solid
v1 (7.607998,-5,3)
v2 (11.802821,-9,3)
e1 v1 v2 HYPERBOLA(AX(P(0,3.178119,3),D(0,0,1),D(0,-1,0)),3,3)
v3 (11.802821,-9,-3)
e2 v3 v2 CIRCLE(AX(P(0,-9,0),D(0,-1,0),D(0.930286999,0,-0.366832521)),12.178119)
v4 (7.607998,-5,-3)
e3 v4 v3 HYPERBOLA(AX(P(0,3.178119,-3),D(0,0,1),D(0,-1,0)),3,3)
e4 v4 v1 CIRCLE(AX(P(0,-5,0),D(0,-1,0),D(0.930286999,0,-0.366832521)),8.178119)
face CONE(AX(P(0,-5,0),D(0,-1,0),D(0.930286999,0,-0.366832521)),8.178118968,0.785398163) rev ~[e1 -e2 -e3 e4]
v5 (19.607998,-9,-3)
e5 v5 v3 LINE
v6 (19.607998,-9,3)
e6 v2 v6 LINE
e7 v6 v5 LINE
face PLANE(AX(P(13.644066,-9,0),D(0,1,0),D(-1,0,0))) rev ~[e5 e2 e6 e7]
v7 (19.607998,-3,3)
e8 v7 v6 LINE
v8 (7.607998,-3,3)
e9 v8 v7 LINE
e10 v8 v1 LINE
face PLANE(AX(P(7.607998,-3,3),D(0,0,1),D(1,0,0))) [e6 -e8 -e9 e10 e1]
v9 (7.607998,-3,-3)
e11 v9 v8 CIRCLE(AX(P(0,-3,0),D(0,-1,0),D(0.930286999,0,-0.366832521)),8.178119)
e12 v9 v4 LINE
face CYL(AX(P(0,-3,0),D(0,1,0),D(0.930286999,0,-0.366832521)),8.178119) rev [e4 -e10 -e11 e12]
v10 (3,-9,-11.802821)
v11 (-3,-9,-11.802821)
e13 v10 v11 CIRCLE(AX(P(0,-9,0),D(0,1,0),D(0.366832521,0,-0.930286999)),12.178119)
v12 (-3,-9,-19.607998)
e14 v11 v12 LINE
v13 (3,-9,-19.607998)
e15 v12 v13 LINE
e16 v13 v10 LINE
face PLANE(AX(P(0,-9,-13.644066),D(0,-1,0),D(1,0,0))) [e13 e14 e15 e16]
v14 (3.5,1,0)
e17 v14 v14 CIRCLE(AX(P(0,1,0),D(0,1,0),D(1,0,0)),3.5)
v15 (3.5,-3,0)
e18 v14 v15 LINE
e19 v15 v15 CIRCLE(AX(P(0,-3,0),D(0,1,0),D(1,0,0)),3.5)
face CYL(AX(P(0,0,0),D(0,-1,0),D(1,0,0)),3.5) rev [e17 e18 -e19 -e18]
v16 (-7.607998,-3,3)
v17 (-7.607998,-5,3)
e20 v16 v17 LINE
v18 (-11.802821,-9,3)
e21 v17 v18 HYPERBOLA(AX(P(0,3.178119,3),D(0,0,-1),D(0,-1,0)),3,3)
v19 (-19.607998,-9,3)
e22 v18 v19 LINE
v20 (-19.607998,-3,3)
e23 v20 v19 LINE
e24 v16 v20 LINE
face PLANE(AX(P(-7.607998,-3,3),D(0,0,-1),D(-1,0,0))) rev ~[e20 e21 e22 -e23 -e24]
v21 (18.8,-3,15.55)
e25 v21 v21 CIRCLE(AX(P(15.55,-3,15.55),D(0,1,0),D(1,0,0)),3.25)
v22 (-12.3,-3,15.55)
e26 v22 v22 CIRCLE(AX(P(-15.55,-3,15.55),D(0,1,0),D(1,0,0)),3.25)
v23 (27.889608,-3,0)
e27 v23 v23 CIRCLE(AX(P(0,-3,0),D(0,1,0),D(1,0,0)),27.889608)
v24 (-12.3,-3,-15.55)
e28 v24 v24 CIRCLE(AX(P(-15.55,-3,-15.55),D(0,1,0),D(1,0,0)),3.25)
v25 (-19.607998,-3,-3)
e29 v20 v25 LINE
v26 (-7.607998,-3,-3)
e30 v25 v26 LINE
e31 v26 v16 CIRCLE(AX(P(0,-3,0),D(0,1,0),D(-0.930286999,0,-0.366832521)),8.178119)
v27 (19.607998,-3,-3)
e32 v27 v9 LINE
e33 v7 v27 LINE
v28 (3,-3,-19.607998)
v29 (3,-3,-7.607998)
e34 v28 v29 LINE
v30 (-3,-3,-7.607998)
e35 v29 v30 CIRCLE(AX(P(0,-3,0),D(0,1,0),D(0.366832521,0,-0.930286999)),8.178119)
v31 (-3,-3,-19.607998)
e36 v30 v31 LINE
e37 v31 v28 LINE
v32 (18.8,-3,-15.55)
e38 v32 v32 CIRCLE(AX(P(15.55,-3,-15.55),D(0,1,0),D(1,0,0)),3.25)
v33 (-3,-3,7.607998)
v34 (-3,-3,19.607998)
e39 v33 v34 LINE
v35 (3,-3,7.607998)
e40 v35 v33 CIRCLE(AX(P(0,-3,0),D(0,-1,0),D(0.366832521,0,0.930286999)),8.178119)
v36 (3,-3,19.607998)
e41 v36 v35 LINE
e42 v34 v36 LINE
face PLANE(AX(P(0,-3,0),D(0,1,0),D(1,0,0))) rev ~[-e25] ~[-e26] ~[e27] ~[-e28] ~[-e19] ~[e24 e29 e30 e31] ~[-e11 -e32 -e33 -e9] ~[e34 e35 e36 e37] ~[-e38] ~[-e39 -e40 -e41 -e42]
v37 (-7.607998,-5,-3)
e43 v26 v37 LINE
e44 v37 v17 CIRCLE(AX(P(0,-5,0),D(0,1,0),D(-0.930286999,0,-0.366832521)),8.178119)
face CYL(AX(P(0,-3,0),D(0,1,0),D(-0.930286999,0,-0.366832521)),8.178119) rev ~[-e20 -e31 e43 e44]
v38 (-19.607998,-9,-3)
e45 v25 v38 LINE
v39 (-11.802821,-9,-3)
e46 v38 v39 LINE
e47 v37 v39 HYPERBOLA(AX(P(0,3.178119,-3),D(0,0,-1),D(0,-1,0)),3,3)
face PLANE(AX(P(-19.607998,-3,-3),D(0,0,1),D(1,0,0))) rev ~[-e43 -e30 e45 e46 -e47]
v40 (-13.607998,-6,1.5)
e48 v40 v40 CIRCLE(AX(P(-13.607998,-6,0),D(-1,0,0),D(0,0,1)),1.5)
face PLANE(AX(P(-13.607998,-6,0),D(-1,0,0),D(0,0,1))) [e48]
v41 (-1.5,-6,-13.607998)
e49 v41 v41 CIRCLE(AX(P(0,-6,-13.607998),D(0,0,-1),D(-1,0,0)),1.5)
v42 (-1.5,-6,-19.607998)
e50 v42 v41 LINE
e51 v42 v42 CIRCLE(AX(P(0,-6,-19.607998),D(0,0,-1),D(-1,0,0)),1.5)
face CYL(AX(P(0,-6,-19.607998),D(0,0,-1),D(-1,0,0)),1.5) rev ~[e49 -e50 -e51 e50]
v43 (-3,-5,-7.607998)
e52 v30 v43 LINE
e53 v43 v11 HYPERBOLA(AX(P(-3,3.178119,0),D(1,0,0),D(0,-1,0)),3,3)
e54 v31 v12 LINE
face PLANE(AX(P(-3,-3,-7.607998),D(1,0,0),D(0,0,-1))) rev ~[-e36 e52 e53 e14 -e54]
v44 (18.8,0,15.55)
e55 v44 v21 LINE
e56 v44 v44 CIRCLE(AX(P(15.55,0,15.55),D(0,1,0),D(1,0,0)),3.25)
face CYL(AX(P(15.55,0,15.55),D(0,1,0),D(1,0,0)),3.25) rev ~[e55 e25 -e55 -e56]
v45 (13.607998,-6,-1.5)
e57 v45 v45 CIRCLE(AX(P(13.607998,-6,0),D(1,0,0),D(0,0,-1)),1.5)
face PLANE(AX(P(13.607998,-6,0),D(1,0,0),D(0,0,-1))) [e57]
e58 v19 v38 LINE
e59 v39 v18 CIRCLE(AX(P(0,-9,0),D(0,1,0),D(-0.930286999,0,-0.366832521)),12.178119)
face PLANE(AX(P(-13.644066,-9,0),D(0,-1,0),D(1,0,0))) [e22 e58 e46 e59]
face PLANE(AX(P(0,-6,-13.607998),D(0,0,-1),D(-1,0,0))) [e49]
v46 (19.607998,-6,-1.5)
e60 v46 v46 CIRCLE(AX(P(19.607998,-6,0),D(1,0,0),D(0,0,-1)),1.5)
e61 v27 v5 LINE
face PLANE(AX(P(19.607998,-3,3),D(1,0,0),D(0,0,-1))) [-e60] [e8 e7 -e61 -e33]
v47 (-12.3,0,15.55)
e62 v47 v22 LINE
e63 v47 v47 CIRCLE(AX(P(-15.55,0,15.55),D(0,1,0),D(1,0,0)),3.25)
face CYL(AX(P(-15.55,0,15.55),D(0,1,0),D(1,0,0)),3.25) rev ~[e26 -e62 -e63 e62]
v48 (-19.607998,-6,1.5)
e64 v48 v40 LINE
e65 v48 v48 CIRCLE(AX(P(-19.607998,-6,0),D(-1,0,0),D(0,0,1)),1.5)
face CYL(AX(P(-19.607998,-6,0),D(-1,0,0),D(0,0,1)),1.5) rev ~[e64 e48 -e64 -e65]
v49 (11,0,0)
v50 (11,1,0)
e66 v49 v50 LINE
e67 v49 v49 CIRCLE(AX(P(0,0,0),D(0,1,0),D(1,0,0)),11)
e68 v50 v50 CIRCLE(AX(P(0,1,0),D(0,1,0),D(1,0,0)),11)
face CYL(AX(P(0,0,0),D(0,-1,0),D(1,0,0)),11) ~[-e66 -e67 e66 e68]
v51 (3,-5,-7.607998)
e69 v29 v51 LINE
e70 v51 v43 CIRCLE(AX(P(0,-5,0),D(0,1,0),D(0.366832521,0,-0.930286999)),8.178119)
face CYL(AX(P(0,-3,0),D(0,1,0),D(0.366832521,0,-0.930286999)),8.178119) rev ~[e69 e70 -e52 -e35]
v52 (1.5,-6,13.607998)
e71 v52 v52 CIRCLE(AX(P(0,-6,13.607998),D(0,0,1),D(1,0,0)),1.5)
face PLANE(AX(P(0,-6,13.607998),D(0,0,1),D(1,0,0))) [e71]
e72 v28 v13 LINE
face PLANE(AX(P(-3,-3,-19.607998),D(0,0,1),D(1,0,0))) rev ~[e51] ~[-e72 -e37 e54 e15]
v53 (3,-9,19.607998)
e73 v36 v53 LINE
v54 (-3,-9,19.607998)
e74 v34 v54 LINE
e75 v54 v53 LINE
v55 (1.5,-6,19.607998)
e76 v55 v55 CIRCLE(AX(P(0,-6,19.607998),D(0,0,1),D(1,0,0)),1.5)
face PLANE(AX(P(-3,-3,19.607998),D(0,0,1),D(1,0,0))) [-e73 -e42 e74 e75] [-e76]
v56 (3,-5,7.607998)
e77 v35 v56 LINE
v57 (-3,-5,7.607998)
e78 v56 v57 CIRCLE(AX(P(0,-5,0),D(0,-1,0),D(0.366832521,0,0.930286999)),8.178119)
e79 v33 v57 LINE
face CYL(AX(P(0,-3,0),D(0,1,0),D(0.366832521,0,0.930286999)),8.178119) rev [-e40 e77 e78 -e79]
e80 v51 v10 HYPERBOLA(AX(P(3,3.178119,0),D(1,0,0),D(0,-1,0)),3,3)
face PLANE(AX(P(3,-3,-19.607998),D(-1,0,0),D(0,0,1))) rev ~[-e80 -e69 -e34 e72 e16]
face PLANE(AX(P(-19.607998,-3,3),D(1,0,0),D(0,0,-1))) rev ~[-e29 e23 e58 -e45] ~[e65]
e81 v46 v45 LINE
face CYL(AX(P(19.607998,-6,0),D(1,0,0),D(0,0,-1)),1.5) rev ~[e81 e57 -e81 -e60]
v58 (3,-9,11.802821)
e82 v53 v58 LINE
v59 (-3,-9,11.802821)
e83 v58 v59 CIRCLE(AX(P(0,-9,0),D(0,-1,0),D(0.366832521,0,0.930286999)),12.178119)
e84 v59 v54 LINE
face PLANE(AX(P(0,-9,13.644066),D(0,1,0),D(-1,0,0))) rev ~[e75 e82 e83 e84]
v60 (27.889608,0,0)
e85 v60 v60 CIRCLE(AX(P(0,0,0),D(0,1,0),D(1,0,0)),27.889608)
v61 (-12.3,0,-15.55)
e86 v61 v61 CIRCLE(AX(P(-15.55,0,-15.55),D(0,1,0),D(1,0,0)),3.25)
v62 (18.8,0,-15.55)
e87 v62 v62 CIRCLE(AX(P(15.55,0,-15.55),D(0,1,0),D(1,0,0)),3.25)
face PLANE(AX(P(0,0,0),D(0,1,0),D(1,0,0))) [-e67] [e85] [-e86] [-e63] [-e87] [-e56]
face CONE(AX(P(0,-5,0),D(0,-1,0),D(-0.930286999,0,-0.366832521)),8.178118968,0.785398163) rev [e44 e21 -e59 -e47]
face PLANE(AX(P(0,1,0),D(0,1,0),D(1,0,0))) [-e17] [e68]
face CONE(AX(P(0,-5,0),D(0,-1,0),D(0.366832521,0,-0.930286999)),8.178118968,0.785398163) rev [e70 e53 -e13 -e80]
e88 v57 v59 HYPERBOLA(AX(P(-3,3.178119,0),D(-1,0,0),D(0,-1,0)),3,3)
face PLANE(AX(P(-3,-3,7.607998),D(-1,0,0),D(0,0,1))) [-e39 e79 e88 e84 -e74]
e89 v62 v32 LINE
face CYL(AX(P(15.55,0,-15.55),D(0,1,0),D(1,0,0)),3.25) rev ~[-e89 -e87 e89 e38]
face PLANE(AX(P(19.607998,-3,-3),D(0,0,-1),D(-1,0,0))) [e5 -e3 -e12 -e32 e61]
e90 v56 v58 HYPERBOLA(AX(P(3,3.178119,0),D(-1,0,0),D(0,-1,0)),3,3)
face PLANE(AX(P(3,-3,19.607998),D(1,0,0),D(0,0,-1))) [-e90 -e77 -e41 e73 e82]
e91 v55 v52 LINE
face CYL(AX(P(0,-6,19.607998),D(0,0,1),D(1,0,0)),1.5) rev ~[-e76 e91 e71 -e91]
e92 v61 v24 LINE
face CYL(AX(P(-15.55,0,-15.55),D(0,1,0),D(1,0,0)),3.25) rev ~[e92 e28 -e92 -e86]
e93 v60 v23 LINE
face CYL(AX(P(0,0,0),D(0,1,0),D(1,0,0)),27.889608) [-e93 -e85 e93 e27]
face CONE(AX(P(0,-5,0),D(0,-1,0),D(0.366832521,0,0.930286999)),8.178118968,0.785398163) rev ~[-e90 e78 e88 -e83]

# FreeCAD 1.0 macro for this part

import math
import FreeCAD as App
import Part
import Sketcher
from FreeCAD import Vector


def edges_at(feature, points):
    """Names of the edges that pass closest to the given points."""
    edges = feature.Shape.Edges
    near = lambda p: min(range(len(edges)), key=lambda i: edges[i].distToShape(Part.Vertex(*p))[0])
    return sorted({f"Edge{near(p) + 1}" for p in points})

doc = App.newDocument("Part")
body = doc.addObject("PartDesign::Body", "Body")

sketch1 = body.newObject("Sketcher::SketchObject", "Sketch")
sketch1.AttachmentSupport = (doc.getObject("XZ_Plane"), [""])
sketch1.MapMode = "FlatFace"
sketch1.addGeometry([
    Part.Circle(Vector(0, 0, 0), Vector(0, 0, 1), 27.9),
    Part.Circle(Vector(-15.6, 15.6, 0), Vector(0, 0, 1), 3.2),
    Part.Circle(Vector(15.6, 15.6, 0), Vector(0, 0, 1), 3.2),
    Part.Circle(Vector(0, 0, 0), Vector(0, 0, 1), 3.5),
    Part.Circle(Vector(-15.6, -15.6, 0), Vector(0, 0, 1), 3.2),
    Part.Circle(Vector(15.6, -15.6, 0), Vector(0, 0, 1), 3.2),
], False)
sketch1.addConstraint([
    Sketcher.Constraint("Coincident", 0, 3, -1, 1),
    Sketcher.Constraint("Coincident", 3, 3, -1, 1),
    Sketcher.Constraint("Equal", 1, 2),
    Sketcher.Constraint("Equal", 2, 4),
    Sketcher.Constraint("Equal", 4, 5),
    Sketcher.Constraint("Symmetric", 2, 3, 4, 3, -1, 1),
    Sketcher.Constraint("Symmetric", 1, 3, 5, 3, -1, 1),
    Sketcher.Constraint("Symmetric", 1, 3, 2, 3, -2),
    Sketcher.Constraint("Diameter", 3, 7.0),
    Sketcher.Constraint("Diameter", 1, 6.5),
    Sketcher.Constraint("DistanceX", 1, 3, 2, 3, 31.1),
    Sketcher.Constraint("DistanceY", 4, 3, 1, 3, 31.1),
    Sketcher.Constraint("Diameter", 0, 55.779216),
])
pad1 = body.newObject("PartDesign::Pad", "Pad")
pad1.Profile = sketch1
pad1.Length = 3

sketch2 = body.newObject("Sketcher::SketchObject", "Sketch001")
sketch2.AttachmentSupport = (doc.getObject("XZ_Plane"), [""])
sketch2.MapMode = "FlatFace"
sketch2.addGeometry([
    Part.Circle(Vector(0, 0, 0), Vector(0, 0, 1), 11),
    Part.Circle(Vector(0, 0, 0), Vector(0, 0, 1), 3.5),
], False)
sketch2.addConstraint([
    Sketcher.Constraint("Coincident", 0, 3, -1, 1),
    Sketcher.Constraint("Coincident", 1, 3, -1, 1),
    Sketcher.Constraint("Diameter", 0, 22.0),
    Sketcher.Constraint("Diameter", 1, 7.0),
])
pad2 = body.newObject("PartDesign::Pad", "Pad001")
pad2.Profile = sketch2
pad2.Length = 1
pad2.Reversed = True

sketch3 = body.newObject("Sketcher::SketchObject", "Sketch002")
sketch3.AttachmentSupport = (doc.getObject("XZ_Plane"), [""])
sketch3.MapMode = "FlatFace"
sketch3.AttachmentOffset = App.Placement(Vector(0, 0, 3), App.Rotation())
sketch3.addGeometry([
    Part.LineSegment(Vector(-20, -3, 0), Vector(-8, -3, 0)),
    Part.ArcOfCircle(Part.Circle(Vector(0, 0, 0), Vector(0, 0, 1), 8), math.radians(158), math.radians(202)),
    Part.LineSegment(Vector(-8, 3, 0), Vector(-20, 3, 0)),
    Part.LineSegment(Vector(-20, 3, 0), Vector(-20, -3, 0)),
    Part.LineSegment(Vector(3, 20, 0), Vector(-3, 20, 0)),
    Part.LineSegment(Vector(-3, 20, 0), Vector(-3, 8, 0)),
    Part.ArcOfCircle(Part.Circle(Vector(0, 0, 0), Vector(0, 0, 1), 8), math.radians(68), math.radians(112)),
    Part.LineSegment(Vector(3, 8, 0), Vector(3, 20, 0)),
    Part.LineSegment(Vector(8, -3, 0), Vector(20, -3, 0)),
    Part.LineSegment(Vector(20, -3, 0), Vector(20, 3, 0)),
    Part.LineSegment(Vector(20, 3, 0), Vector(8, 3, 0)),
    Part.ArcOfCircle(Part.Circle(Vector(0, 0, 0), Vector(0, 0, 1), 8), math.radians(-22), math.radians(22)),
    Part.LineSegment(Vector(-3, -20, 0), Vector(3, -20, 0)),
    Part.LineSegment(Vector(3, -20, 0), Vector(3, -8, 0)),
    Part.ArcOfCircle(Part.Circle(Vector(0, 0, 0), Vector(0, 0, 1), 8), math.radians(-112), math.radians(-68)),
    Part.LineSegment(Vector(-3, -8, 0), Vector(-3, -20, 0)),
], False)
sketch3.addConstraint([
    Sketcher.Constraint("Coincident", 0, 2, 1, 2),
    Sketcher.Constraint("Coincident", 1, 1, 2, 1),
    Sketcher.Constraint("Coincident", 2, 2, 3, 1),
    Sketcher.Constraint("Coincident", 3, 2, 0, 1),
    Sketcher.Constraint("Coincident", 4, 2, 5, 1),
    Sketcher.Constraint("Coincident", 5, 2, 6, 2),
    Sketcher.Constraint("Coincident", 6, 1, 7, 1),
    Sketcher.Constraint("Coincident", 7, 2, 4, 1),
    Sketcher.Constraint("Coincident", 8, 2, 9, 1),
    Sketcher.Constraint("Coincident", 9, 2, 10, 1),
    Sketcher.Constraint("Coincident", 10, 2, 11, 2),
    Sketcher.Constraint("Coincident", 11, 1, 8, 1),
    Sketcher.Constraint("Coincident", 12, 2, 13, 1),
    Sketcher.Constraint("Coincident", 13, 2, 14, 2),
    Sketcher.Constraint("Coincident", 14, 1, 15, 1),
    Sketcher.Constraint("Coincident", 15, 2, 12, 1),
    Sketcher.Constraint("Horizontal", 0),
    Sketcher.Constraint("Horizontal", 2),
    Sketcher.Constraint("Vertical", 3),
    Sketcher.Constraint("Horizontal", 4),
    Sketcher.Constraint("Vertical", 5),
    Sketcher.Constraint("Vertical", 7),
    Sketcher.Constraint("Horizontal", 8),
    Sketcher.Constraint("Vertical", 9),
    Sketcher.Constraint("Horizontal", 10),
    Sketcher.Constraint("Horizontal", 12),
    Sketcher.Constraint("Vertical", 13),
    Sketcher.Constraint("Vertical", 15),
    Sketcher.Constraint("Coincident", 1, 3, -1, 1),
    Sketcher.Constraint("Coincident", 6, 3, -1, 1),
    Sketcher.Constraint("Coincident", 11, 3, -1, 1),
    Sketcher.Constraint("Coincident", 14, 3, -1, 1),
    Sketcher.Constraint("Equal", 1, 6),
    Sketcher.Constraint("Equal", 6, 11),
    Sketcher.Constraint("Equal", 11, 14),
    Sketcher.Constraint("Symmetric", 2, 2, 8, 2, -1, 1),
    Sketcher.Constraint("Symmetric", 4, 2, 12, 2, -1, 1),
    Sketcher.Constraint("Horizontal", 5, 2, 6, 1),
    Sketcher.Constraint("Horizontal", 3, 2, 8, 2),
    Sketcher.Constraint("Horizontal", 2, 2, 9, 2),
    Sketcher.Constraint("Horizontal", 13, 2, 14, 1),
    Sketcher.Constraint("Equal", 12, 3),
    Sketcher.Constraint("Equal", 10, 5),
    Sketcher.Constraint("DistanceX", 0, 1, 0, 2, 12.0),
    Sketcher.Constraint("DistanceX", 4, 2, 4, 1, 6.0),
    Sketcher.Constraint("Radius", 1, 8.178119),
])
pad3 = body.newObject("PartDesign::Pad", "Pad002")
pad3.Profile = sketch3
pad3.Length = 6
doc.recompute()

chamfer = body.newObject("PartDesign::Chamfer", "Chamfer")
chamfer.Base = (pad3, edges_at(pad3, [
    (-8.178, -9, 0),
    (0, -9, 8.178),
    (8.178, -9, 0),
    (0, -9, -8.178),
]))
chamfer.Size = 4

sketch4 = body.newObject("Sketcher::SketchObject", "Sketch003")
sketch4.AttachmentSupport = (doc.getObject("YZ_Plane"), [""])
sketch4.MapMode = "FlatFace"
sketch4.AttachmentOffset = App.Placement(Vector(0, 0, -19.607998), App.Rotation())
sketch4.addGeometry(Part.Circle(Vector(-6, 0, 0), Vector(0, 0, 1), 1.5), False)
sketch4.addConstraint([
    Sketcher.Constraint("PointOnObject", 0, 3, -1),
    Sketcher.Constraint("Diameter", 0, 3.0),
    Sketcher.Constraint("DistanceX", 0, 3, -1, 1, 6.0),
])
pocket1 = body.newObject("PartDesign::Pocket", "Pocket")
pocket1.Profile = sketch4
pocket1.Length = 6
pocket1.Reversed = True
doc.recompute()

polarpattern = body.newObject("PartDesign::PolarPattern", "PolarPattern")
polarpattern.Originals = [pocket1]
polarpattern.Axis = (doc.getObject("Y_Axis"), [""])
polarpattern.Angle = 360
polarpattern.Occurrences = 4
body.Tip = polarpattern

doc.recompute()
